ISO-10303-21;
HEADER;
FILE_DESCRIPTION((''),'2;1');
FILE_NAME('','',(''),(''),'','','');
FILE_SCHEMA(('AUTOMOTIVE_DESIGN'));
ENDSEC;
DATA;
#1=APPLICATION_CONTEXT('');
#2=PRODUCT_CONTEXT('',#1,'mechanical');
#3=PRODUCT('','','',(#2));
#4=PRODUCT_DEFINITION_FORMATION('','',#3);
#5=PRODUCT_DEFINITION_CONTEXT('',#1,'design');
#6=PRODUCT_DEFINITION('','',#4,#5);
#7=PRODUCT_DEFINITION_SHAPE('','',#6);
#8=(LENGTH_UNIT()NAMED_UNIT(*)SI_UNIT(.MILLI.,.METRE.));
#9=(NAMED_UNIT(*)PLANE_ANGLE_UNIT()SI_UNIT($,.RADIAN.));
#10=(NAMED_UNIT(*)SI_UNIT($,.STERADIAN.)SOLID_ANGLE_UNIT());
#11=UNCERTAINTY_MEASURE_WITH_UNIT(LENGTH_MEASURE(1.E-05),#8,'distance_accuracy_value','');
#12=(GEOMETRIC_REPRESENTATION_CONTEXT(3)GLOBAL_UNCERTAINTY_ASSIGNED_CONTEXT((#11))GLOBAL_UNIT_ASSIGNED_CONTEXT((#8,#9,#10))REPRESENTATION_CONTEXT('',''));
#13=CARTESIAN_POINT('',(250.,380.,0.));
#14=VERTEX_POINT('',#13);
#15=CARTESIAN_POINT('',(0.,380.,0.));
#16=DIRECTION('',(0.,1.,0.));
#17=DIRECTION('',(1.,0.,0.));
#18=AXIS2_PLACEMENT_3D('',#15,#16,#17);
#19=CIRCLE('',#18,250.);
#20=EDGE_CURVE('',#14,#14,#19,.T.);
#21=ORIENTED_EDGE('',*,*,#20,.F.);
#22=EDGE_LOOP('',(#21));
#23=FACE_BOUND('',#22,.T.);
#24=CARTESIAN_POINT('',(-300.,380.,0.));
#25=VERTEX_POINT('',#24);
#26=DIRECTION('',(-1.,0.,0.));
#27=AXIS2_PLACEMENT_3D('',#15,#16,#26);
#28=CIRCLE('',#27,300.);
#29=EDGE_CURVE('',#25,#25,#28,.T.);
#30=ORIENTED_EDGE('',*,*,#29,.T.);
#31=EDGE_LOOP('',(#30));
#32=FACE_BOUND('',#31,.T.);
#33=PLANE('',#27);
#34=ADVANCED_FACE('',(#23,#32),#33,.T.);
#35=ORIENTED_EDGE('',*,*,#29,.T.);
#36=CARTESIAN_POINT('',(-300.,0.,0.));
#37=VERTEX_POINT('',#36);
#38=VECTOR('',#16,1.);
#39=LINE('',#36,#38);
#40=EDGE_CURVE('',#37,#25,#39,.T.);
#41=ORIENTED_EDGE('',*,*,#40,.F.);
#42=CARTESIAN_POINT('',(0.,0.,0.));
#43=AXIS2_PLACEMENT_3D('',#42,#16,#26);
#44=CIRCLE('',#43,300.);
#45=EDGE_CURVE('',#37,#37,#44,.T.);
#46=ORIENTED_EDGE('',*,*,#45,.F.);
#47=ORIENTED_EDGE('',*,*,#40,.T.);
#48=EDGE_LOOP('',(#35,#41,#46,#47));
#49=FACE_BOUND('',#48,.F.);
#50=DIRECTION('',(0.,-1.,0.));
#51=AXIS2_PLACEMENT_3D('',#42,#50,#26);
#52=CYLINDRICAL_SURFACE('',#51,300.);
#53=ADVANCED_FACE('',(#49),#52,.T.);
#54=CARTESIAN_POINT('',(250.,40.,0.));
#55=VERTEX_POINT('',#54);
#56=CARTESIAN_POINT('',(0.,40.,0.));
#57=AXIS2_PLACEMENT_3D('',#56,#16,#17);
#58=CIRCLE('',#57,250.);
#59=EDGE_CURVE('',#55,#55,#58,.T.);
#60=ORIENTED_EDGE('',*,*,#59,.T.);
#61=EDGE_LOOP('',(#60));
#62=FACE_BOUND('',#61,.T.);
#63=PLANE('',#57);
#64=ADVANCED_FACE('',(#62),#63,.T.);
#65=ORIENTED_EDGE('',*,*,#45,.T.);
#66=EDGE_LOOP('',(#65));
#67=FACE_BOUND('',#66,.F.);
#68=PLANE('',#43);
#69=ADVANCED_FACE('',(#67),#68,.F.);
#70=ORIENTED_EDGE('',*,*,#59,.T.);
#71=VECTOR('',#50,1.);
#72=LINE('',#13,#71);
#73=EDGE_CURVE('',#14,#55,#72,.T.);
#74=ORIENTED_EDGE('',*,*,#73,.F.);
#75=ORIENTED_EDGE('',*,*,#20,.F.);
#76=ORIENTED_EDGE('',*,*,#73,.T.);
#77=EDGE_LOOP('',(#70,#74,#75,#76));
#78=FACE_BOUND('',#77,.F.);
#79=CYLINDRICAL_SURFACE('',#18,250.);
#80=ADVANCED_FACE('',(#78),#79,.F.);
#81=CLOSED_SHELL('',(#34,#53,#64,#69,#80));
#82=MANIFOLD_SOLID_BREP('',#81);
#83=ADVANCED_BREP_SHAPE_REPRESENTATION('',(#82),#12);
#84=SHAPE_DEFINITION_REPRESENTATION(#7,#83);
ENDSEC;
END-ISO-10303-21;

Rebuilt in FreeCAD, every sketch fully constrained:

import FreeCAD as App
import Part
import Sketcher
Q = App.Units.Quantity

doc = App.newDocument("Part")
body = doc.addObject("PartDesign::Body", "Body")

sketch1 = body.newObject("Sketcher::SketchObject", "Sketch")
sketch1.AttachmentSupport = (doc.getObject("XZ_Plane"), [""])
sketch1.MapMode = "FlatFace"
sketch1.addGeometry(Part.Circle(App.Vector(0, 0, 0), App.Vector(0, 0, 1), 300), False)
sketch1.addConstraint([
    Sketcher.Constraint("Coincident", 0, 3, -1, 1),
    Sketcher.Constraint("Diameter", 0, Q("600 mm")),
])
pad1 = body.newObject("PartDesign::Pad", "Pad")
pad1.Profile = sketch1
pad1.Length = 380
pad1.Reversed = True

sketch2 = body.newObject("Sketcher::SketchObject", "Sketch001")
sketch2.AttachmentSupport = (doc.getObject("XZ_Plane"), [""])
sketch2.MapMode = "FlatFace"
sketch2.AttachmentOffset = App.Placement(App.Vector(0, 0, -380), App.Rotation())
sketch2.addGeometry(Part.Circle(App.Vector(0, 0, 0), App.Vector(0, 0, 1), 250), False)
sketch2.addConstraint([
    Sketcher.Constraint("Coincident", 0, 3, -1, 1),
    Sketcher.Constraint("Diameter", 0, Q("500 mm")),
])
pocket1 = body.newObject("PartDesign::Pocket", "Pocket")
pocket1.Profile = sketch2
pocket1.Length = 340
pocket1.Reversed = True

doc.recompute()
